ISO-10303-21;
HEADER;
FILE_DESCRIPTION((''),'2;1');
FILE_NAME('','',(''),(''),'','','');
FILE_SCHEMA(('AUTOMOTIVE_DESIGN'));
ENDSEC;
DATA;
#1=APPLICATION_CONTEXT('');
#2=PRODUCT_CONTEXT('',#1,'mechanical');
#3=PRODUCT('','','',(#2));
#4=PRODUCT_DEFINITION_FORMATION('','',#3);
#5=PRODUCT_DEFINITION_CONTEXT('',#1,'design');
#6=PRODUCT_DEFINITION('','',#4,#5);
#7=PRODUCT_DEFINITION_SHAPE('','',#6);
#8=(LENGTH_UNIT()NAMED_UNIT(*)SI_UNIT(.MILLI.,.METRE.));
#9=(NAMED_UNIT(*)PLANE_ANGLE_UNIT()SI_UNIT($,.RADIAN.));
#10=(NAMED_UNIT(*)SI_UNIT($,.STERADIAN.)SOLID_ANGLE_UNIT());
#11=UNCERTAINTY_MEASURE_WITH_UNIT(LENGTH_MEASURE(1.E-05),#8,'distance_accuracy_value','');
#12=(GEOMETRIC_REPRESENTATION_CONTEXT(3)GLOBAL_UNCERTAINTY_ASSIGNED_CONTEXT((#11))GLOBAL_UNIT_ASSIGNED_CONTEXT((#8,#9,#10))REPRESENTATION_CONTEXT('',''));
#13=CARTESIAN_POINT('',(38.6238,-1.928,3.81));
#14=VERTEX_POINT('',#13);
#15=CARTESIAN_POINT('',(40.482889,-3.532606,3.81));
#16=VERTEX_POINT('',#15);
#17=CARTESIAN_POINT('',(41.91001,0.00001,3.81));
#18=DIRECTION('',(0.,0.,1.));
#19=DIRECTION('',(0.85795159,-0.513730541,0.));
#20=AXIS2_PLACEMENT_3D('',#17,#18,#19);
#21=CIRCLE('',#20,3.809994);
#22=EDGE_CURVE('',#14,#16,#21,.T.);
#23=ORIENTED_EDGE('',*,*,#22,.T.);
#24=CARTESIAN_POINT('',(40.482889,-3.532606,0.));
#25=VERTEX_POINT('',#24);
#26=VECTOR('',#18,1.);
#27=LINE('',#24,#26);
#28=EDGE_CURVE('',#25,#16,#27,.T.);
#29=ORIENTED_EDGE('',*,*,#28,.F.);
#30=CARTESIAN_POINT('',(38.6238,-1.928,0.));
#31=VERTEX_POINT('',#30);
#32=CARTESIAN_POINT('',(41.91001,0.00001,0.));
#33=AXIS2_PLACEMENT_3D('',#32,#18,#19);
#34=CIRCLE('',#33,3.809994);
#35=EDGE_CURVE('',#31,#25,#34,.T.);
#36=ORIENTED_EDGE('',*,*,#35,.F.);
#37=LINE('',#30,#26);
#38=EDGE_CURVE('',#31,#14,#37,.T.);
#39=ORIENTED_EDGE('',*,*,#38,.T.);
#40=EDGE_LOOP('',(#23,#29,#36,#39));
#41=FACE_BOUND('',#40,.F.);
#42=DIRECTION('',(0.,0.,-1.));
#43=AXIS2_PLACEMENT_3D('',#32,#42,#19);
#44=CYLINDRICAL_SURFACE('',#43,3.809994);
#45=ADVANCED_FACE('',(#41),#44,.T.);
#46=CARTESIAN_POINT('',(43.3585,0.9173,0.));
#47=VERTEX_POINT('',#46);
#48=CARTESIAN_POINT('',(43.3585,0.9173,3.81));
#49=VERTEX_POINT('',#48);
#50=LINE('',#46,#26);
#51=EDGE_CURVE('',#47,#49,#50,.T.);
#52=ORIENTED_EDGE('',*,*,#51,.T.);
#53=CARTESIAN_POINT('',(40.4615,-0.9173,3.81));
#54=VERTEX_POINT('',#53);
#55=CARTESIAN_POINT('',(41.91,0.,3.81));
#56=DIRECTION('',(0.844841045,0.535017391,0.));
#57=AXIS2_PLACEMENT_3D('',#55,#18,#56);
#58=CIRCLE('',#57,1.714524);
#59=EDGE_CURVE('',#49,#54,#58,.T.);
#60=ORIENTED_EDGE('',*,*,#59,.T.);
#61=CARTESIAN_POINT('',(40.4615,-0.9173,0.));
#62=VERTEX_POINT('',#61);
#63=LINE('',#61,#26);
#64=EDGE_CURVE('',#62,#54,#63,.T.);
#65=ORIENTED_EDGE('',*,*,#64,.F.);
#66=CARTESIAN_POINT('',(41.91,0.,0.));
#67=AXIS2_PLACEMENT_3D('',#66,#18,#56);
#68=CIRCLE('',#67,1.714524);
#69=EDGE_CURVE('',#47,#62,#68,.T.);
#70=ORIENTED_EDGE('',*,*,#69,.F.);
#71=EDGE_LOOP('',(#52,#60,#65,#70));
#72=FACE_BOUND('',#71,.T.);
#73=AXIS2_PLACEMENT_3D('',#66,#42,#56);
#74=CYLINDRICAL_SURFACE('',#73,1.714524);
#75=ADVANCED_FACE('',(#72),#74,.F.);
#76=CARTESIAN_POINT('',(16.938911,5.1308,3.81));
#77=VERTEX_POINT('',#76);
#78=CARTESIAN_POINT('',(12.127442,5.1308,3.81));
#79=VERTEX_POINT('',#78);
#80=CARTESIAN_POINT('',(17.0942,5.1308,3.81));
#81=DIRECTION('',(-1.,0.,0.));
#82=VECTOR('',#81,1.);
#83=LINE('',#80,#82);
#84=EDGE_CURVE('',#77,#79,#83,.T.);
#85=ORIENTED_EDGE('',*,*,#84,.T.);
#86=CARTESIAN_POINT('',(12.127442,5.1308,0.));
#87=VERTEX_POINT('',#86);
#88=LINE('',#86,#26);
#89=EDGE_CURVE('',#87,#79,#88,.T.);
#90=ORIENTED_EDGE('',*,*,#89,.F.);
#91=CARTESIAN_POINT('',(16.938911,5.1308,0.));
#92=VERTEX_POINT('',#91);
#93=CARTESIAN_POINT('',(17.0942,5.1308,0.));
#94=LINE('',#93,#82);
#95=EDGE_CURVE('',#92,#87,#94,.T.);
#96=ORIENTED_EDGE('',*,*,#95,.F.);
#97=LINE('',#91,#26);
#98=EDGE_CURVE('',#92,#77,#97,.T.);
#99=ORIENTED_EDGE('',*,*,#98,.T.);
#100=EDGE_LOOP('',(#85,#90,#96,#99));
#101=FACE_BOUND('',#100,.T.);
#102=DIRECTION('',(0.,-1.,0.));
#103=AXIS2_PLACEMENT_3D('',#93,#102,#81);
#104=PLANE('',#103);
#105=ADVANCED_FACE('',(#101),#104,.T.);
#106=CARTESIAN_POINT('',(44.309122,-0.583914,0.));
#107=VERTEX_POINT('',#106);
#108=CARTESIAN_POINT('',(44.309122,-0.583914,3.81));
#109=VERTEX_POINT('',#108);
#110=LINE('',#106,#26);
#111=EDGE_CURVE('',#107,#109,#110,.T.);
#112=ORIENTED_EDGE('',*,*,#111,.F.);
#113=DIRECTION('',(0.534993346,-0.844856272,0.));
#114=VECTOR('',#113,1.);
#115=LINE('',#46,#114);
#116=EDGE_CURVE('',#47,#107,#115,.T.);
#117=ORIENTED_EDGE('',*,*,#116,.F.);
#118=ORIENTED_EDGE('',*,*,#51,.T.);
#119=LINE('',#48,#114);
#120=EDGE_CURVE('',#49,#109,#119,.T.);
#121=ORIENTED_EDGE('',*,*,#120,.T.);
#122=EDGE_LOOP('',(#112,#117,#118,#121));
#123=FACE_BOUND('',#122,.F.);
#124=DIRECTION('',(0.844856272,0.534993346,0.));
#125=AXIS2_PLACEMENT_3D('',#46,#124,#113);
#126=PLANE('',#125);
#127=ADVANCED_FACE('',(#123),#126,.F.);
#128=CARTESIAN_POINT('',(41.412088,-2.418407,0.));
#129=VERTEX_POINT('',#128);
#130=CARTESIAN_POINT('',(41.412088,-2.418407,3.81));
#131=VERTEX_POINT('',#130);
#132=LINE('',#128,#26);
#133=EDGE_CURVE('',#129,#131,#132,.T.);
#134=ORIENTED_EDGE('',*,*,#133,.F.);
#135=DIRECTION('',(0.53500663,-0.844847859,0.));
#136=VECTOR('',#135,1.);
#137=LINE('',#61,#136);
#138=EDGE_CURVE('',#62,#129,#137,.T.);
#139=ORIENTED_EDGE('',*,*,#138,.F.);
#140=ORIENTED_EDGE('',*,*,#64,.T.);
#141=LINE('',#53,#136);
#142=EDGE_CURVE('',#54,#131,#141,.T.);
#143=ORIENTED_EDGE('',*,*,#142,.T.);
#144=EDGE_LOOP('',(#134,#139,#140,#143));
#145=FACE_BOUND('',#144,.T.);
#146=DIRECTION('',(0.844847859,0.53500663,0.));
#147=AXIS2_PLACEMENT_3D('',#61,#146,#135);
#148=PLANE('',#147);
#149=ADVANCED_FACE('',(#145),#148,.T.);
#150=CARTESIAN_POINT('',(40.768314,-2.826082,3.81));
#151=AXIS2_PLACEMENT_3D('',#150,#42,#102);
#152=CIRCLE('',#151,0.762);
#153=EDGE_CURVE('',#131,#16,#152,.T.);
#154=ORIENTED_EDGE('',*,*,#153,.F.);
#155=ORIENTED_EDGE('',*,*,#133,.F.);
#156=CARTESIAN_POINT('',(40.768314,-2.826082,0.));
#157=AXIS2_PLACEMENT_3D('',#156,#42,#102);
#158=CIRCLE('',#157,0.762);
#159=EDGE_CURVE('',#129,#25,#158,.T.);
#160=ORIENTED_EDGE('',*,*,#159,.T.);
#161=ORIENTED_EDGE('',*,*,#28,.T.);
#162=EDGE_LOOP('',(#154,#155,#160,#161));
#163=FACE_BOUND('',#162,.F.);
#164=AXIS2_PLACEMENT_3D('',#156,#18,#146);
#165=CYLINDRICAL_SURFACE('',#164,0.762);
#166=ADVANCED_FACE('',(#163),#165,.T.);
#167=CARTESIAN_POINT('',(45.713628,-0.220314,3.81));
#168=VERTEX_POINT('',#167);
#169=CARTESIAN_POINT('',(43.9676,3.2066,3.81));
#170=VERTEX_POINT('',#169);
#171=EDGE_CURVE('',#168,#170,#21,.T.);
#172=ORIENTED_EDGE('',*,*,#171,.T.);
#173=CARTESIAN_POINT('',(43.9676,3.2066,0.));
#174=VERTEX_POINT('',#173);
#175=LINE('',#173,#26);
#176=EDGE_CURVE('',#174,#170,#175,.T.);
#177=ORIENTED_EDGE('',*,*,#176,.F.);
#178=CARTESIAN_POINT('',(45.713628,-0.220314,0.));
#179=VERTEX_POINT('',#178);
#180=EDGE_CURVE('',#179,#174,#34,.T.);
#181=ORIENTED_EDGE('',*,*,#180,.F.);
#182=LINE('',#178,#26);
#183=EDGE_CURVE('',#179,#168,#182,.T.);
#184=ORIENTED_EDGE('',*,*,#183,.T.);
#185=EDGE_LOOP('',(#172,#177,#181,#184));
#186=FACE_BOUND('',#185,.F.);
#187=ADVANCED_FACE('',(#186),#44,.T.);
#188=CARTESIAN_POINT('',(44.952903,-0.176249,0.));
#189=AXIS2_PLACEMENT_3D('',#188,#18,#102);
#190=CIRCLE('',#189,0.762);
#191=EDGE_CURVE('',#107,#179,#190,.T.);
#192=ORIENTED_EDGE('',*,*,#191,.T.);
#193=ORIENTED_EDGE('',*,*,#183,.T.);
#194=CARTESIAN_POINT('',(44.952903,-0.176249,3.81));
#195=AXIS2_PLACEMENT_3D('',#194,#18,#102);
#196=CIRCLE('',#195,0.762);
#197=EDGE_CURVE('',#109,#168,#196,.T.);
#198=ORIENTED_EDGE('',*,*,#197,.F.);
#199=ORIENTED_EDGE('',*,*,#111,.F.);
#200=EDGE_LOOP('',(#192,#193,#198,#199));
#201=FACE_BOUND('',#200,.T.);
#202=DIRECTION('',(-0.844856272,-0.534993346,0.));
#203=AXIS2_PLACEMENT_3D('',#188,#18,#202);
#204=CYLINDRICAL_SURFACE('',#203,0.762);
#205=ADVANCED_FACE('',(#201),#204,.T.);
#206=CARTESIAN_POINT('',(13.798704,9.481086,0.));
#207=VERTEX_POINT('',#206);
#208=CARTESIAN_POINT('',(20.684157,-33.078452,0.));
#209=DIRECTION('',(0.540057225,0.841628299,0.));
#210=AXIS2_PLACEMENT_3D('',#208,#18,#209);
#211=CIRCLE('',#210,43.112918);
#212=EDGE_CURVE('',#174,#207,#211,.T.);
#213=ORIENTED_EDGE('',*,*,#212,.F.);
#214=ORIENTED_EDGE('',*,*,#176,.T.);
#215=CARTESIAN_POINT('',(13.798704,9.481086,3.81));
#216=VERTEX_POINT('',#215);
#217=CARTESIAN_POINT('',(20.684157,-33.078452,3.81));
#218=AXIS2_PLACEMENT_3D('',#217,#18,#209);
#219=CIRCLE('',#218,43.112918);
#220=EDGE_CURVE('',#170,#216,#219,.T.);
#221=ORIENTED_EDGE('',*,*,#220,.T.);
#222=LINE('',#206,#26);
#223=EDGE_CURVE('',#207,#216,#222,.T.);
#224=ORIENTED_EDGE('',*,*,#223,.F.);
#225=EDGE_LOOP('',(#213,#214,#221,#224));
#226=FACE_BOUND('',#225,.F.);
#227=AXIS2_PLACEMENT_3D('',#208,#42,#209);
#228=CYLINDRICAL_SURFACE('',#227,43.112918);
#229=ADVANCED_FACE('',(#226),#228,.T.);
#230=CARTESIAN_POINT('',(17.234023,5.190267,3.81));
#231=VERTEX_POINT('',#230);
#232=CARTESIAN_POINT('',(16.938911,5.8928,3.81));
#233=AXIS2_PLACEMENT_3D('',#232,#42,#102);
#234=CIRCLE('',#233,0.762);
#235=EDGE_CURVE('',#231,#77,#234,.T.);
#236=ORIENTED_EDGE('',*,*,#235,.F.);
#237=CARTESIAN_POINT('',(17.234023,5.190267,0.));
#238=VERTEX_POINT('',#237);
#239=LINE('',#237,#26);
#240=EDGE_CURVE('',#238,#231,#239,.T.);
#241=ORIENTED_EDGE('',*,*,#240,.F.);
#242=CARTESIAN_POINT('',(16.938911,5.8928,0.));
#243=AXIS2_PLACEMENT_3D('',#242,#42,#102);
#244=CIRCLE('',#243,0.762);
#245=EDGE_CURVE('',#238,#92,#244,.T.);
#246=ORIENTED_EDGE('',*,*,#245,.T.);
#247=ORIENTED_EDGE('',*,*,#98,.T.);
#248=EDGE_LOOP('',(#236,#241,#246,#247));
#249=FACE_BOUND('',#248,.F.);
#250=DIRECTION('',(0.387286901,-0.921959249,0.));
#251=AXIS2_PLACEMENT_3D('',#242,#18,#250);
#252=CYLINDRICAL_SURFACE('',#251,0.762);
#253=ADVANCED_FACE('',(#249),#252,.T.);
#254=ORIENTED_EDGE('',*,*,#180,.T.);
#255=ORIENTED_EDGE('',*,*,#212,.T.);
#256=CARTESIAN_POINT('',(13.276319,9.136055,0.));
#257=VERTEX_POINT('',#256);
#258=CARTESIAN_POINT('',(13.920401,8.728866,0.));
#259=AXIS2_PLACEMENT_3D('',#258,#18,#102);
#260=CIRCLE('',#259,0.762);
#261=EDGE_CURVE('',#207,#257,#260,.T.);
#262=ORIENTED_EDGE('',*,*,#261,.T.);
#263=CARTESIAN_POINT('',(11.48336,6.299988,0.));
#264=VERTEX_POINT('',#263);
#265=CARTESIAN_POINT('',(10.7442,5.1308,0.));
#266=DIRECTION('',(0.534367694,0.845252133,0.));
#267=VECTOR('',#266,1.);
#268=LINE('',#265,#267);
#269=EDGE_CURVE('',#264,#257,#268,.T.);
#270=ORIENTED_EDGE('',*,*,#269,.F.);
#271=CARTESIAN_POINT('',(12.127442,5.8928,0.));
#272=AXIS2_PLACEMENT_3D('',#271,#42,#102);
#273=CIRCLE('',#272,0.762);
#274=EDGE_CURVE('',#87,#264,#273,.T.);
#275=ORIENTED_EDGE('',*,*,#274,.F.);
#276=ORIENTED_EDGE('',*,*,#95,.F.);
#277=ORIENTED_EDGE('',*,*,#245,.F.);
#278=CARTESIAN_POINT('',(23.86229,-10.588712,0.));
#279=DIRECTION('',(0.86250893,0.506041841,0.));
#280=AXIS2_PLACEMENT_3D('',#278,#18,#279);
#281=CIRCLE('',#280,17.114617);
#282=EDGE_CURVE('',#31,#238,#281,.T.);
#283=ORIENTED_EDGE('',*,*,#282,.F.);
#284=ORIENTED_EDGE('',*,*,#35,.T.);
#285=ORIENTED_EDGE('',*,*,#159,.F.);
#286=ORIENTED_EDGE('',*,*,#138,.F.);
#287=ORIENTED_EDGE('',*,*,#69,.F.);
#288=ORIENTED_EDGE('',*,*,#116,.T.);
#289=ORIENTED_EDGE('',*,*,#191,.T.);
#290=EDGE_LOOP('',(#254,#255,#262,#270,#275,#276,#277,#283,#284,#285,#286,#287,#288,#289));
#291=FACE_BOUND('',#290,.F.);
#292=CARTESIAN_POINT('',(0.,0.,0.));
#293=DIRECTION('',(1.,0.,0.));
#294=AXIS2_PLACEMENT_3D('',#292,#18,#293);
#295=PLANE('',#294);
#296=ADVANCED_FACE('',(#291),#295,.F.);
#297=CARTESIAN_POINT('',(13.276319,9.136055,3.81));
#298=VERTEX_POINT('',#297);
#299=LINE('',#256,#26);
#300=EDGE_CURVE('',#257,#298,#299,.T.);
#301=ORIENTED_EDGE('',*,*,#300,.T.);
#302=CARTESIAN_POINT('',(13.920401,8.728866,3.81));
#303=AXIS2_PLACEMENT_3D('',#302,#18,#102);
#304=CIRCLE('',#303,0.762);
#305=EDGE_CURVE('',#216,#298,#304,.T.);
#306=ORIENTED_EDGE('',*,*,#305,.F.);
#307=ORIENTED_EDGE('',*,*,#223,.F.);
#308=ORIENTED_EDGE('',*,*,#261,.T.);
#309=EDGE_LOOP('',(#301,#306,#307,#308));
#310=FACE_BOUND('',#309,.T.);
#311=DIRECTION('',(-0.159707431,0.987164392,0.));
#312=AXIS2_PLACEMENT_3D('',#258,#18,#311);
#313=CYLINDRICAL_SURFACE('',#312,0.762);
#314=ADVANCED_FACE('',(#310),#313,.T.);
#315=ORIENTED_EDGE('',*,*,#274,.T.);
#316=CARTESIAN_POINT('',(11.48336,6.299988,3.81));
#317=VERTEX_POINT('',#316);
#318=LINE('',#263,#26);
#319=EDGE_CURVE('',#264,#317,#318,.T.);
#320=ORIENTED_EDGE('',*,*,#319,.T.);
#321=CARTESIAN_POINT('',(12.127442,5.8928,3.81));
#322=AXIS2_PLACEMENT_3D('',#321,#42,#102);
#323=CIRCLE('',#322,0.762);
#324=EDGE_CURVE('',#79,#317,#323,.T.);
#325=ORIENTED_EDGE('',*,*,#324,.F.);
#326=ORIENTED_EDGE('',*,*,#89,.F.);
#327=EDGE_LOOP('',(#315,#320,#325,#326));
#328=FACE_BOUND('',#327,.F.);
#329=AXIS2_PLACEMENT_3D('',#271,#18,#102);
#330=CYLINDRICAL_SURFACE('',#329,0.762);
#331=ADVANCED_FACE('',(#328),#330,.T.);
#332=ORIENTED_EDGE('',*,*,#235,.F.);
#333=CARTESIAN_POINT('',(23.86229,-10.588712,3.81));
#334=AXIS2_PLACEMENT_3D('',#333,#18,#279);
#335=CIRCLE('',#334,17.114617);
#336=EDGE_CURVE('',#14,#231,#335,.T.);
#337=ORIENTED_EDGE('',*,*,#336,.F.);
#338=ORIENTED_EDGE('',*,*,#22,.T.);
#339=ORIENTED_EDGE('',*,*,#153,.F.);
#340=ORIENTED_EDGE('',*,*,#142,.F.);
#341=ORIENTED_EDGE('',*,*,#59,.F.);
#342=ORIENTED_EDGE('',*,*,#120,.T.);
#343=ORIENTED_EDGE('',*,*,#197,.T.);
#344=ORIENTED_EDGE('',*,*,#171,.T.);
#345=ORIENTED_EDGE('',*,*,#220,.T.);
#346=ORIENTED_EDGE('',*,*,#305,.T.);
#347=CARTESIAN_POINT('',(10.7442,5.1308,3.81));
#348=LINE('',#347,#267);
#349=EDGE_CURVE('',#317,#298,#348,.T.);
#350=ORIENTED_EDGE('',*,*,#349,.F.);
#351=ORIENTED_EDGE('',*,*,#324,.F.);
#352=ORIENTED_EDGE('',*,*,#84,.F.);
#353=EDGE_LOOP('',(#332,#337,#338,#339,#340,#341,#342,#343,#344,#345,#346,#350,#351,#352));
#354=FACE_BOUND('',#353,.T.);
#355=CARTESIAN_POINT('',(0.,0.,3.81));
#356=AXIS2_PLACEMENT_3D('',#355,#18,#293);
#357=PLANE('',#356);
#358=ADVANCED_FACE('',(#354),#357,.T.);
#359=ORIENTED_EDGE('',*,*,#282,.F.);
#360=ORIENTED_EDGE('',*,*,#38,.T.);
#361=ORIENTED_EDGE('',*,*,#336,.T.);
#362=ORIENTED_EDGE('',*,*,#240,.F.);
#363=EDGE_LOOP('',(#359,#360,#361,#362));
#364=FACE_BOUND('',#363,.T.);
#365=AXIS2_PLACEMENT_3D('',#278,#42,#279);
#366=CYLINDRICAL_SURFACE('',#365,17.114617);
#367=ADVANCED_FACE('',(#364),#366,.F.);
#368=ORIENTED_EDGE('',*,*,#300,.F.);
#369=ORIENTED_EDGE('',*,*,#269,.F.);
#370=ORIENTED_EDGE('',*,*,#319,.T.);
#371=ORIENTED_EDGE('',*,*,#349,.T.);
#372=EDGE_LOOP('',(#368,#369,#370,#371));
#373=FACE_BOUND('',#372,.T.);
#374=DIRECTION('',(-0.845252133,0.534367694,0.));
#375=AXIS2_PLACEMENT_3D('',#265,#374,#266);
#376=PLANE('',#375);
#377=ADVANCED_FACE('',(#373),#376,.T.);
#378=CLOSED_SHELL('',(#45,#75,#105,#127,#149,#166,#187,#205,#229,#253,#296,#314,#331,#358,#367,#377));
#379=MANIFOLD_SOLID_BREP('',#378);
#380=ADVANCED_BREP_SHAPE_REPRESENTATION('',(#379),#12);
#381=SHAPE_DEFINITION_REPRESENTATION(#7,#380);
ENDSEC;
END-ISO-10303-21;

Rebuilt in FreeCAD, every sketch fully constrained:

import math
import FreeCAD as App
import Part
import Sketcher

V = App.Vector
Q = App.Units.Quantity


def edges_at(feature, points):
    """Names of the edges that pass closest to the given points."""
    edges = feature.Shape.Edges
    near = lambda p: min(range(len(edges)), key=lambda i: edges[i].distToShape(Part.Vertex(*p))[0])
    return sorted({f"Edge{near(p) + 1}" for p in points})

doc = App.newDocument("Part")
body = doc.addObject("PartDesign::Body", "Body")

sketch1 = body.newObject("Sketcher::SketchObject", "Sketch")
sketch1.AttachmentSupport = (doc.getObject("XY_Plane"), [""])
sketch1.MapMode = "FlatFace"
sketch1.addGeometry([
    Part.ArcOfCircle(Part.Circle(V(41.9, 0, 0), V(0, 0, 1), 1.7), math.radians(32), math.radians(212)),
    Part.LineSegment(V(43.4, 0.9, 0), V(45.2, -2, 0)),
    Part.ArcOfCircle(Part.Circle(V(41.9, 0, 0), V(0, 0, 1), 3.8), math.radians(-31), math.radians(57)),
    Part.ArcOfCircle(Part.Circle(V(20.7, -33.1, 0), V(0, 0, 1), 43.1), math.radians(57), math.radians(100)),
    Part.LineSegment(V(13.5, 9.4, 0), V(10.7, 5.1, 0)),
    Part.LineSegment(V(10.7, 5.1, 0), V(17.1, 5.1, 0)),
    Part.ArcOfCircle(Part.Circle(V(23.9, -10.6, 0), V(0, 0, 1), 17.1), math.radians(30), math.radians(113)),
    Part.ArcOfCircle(Part.Circle(V(41.9, 0, 0), V(0, 0, 1), 3.8), math.radians(-150), math.radians(-84)),
    Part.LineSegment(V(42.3, -3.8, 0), V(40.5, -0.9, 0)),
], False)
sketch1.addConstraint([
    Sketcher.Constraint("Tangent", 0, 1, 1, 1),
    Sketcher.Constraint("Coincident", 1, 2, 2, 1),
    Sketcher.Constraint("Tangent", 2, 2, 3, 1),
    Sketcher.Constraint("Coincident", 3, 2, 4, 1),
    Sketcher.Constraint("Coincident", 4, 2, 5, 1),
    Sketcher.Constraint("Coincident", 5, 2, 6, 2),
    Sketcher.Constraint("Tangent", 6, 1, 7, 1),
    Sketcher.Constraint("Coincident", 7, 2, 8, 1),
    Sketcher.Constraint("Tangent", 8, 2, 0, 2),
    Sketcher.Constraint("Horizontal", 5),
    Sketcher.Constraint("Coincident", 2, 3, 0, 3),
    Sketcher.Constraint("Coincident", 7, 3, 0, 3),
    Sketcher.Constraint("Equal", 2, 7),
    Sketcher.Constraint("PointOnObject", 0, 3, -1),
    Sketcher.Constraint("Parallel", 1, 8),
    Sketcher.Constraint("Radius", 2, Q("0.15 in")),
    Sketcher.Constraint("Distance", 4, Q("0.2 in")),
    Sketcher.Constraint("DistanceX", 5, 1, 5, 2, Q("0.25 in")),
    Sketcher.Constraint("Radius", 0, Q("0.0675 in")),
    Sketcher.Constraint("DistanceX", -1, 1, 0, 3, Q("1.65 in")),
    Sketcher.Constraint("DistanceY", -1, 1, 4, 2, Q("0.202 in")),
    Sketcher.Constraint("DistanceX", -1, 1, 5, 2, Q("0.673 in")),
    Sketcher.Constraint("Angle", 4, Q("-122.301 deg")),
    Sketcher.Constraint("Radius", 6, Q("0.6738 in")),
    Sketcher.Constraint("Radius", 3, Q("43.1125 mm")),
    Sketcher.Constraint("DistanceY", 6, 3, 0, 1, Q("0.453 in")),
])
pad1 = body.newObject("PartDesign::Pad", "Pad")
pad1.Profile = sketch1
pad1.Length = Q("0.15 in")
doc.recompute()

fillet = body.newObject("PartDesign::Fillet", "Fillet")
fillet.Base = (pad1, edges_at(pad1, [
    (42.282, -3.792, 1.905),
    (45.179, -1.957, 1.905),
    (17.094, 5.131, 1.905),
    (13.459, 9.425, 1.905),
    (10.744, 5.131, 1.905),
]))
fillet.Radius = Q("0.03 in")

doc.recompute()
